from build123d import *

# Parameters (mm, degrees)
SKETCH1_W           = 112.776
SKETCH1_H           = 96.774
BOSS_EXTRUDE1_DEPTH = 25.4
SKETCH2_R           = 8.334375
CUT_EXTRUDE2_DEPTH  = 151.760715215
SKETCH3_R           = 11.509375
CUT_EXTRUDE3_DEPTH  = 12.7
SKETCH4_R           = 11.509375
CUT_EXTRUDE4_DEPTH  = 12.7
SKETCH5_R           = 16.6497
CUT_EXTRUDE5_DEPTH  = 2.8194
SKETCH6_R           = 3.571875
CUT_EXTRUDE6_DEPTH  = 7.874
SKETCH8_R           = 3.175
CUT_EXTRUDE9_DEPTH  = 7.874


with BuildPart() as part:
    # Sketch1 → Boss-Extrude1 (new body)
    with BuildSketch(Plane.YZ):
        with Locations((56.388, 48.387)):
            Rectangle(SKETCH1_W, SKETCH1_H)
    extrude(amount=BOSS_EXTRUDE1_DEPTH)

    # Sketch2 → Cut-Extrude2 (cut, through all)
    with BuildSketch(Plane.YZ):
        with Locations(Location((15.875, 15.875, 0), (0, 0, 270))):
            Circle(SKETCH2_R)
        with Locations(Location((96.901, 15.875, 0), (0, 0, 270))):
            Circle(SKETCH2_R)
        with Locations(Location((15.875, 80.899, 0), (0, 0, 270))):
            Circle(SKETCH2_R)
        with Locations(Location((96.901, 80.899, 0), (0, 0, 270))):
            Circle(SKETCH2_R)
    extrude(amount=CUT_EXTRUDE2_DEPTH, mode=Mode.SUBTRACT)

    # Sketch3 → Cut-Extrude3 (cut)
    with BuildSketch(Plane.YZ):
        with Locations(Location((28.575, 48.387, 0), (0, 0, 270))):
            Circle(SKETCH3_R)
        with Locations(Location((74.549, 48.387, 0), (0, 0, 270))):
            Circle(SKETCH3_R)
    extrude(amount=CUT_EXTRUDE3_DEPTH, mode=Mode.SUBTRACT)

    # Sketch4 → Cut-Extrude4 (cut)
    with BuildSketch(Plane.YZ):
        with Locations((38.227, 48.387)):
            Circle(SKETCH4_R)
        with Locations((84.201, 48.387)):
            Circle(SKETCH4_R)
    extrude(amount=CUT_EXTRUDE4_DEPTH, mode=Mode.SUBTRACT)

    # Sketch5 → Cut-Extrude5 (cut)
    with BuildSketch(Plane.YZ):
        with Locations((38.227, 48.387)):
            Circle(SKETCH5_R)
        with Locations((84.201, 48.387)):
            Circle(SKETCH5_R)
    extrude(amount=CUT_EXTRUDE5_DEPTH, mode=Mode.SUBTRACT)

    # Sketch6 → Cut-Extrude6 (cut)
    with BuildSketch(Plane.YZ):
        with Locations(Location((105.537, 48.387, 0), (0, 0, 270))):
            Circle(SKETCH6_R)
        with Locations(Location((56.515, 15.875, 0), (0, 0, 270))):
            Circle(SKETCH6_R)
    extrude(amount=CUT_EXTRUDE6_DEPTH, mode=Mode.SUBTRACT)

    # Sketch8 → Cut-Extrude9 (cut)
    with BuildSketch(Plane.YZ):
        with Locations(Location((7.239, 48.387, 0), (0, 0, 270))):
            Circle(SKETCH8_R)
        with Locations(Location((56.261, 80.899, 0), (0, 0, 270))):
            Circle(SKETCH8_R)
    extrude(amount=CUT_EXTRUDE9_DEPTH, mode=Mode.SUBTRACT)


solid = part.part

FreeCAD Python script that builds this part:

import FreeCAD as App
import Part
import Sketcher
from FreeCAD import Vector
Q = App.Units.Quantity

doc = App.newDocument("Part")
body = doc.addObject("PartDesign::Body", "Body")

# Sketch on YZ plane
sketch1 = body.newObject("Sketcher::SketchObject", "Sketch")
sketch1.AttachmentSupport = (doc.getObject("YZ_Plane"), [""])
sketch1.MapMode = "FlatFace"
sketch1.addGeometry(Part.LineSegment(Vector(0, 97, 0), Vector(0, 0, 0)), False)
sketch1.addGeometry(Part.LineSegment(Vector(0, 0, 0), Vector(113, 0, 0)), False)
sketch1.addGeometry(Part.LineSegment(Vector(113, 0, 0), Vector(113, 97, 0)), False)
sketch1.addGeometry(Part.LineSegment(Vector(113, 97, 0), Vector(0, 97, 0)), False)
sketch1.addConstraint(Sketcher.Constraint("Coincident", 0, 2, 1, 1))
sketch1.addConstraint(Sketcher.Constraint("Coincident", 1, 2, 2, 1))
sketch1.addConstraint(Sketcher.Constraint("Coincident", 2, 2, 3, 1))
sketch1.addConstraint(Sketcher.Constraint("Coincident", 3, 2, 0, 1))
sketch1.addConstraint(Sketcher.Constraint("Vertical", 0))
sketch1.addConstraint(Sketcher.Constraint("Horizontal", 1))
sketch1.addConstraint(Sketcher.Constraint("Vertical", 2))
sketch1.addConstraint(Sketcher.Constraint("Horizontal", 3))
sketch1.addConstraint(Sketcher.Constraint("Coincident", 0, 2, -1, 1))
sketch1.addConstraint(Sketcher.Constraint("DistanceX", 1, 1, 1, 2, Q("4.44 in")))
sketch1.addConstraint(Sketcher.Constraint("DistanceY", 0, 2, 0, 1, Q("3.81 in")))
pad1 = body.newObject("PartDesign::Pad", "Pad")
pad1.Profile = sketch1
pad1.Length = Q("1 in")

# Sketch on YZ plane
sketch2 = body.newObject("Sketcher::SketchObject", "Sketch001")
sketch2.AttachmentSupport = (doc.getObject("YZ_Plane"), [""])
sketch2.MapMode = "FlatFace"
sketch2.addGeometry(Part.Circle(Vector(16, 16, 0), Vector(0, 0, 1), 8), False)
sketch2.addGeometry(Part.Circle(Vector(97, 16, 0), Vector(0, 0, 1), 8), False)
sketch2.addGeometry(Part.Circle(Vector(16, 81, 0), Vector(0, 0, 1), 8), False)
sketch2.addGeometry(Part.Circle(Vector(97, 81, 0), Vector(0, 0, 1), 8), False)
sketch2.addConstraint(Sketcher.Constraint("Equal", 0, 1))
sketch2.addConstraint(Sketcher.Constraint("Equal", 1, 2))
sketch2.addConstraint(Sketcher.Constraint("Equal", 2, 3))
sketch2.addConstraint(Sketcher.Constraint("Horizontal", 0, 3, 1, 3))
sketch2.addConstraint(Sketcher.Constraint("Horizontal", 2, 3, 3, 3))
sketch2.addConstraint(Sketcher.Constraint("Vertical", 0, 3, 2, 3))
sketch2.addConstraint(Sketcher.Constraint("Vertical", 1, 3, 3, 3))
sketch2.addConstraint(Sketcher.Constraint("Diameter", 0, Q("0.65625 in")))
sketch2.addConstraint(Sketcher.Constraint("DistanceX", 0, 3, 1, 3, Q("3.19 in")))
sketch2.addConstraint(Sketcher.Constraint("DistanceY", 0, 3, 2, 3, Q("2.56 in")))
sketch2.addConstraint(Sketcher.Constraint("DistanceX", -1, 1, 0, 3, Q("0.625 in")))
sketch2.addConstraint(Sketcher.Constraint("DistanceY", -1, 1, 0, 3, Q("0.625 in")))
pocket1 = body.newObject("PartDesign::Pocket", "Pocket")
pocket1.Profile = sketch2
pocket1.Type = "ThroughAll"
pocket1.Reversed = True

# Sketch on YZ plane
sketch3 = body.newObject("Sketcher::SketchObject", "Sketch002")
sketch3.AttachmentSupport = (doc.getObject("YZ_Plane"), [""])
sketch3.MapMode = "FlatFace"
sketch3.addGeometry(Part.Circle(Vector(29, 48, 0), Vector(0, 0, 1), 12), False)
sketch3.addGeometry(Part.Circle(Vector(75, 48, 0), Vector(0, 0, 1), 12), False)
sketch3.addConstraint(Sketcher.Constraint("Equal", 0, 1))
sketch3.addConstraint(Sketcher.Constraint("Horizontal", 0, 3, 1, 3))
sketch3.addConstraint(Sketcher.Constraint("Diameter", 0, Q("0.90625 in")))
sketch3.addConstraint(Sketcher.Constraint("DistanceX", 0, 3, 1, 3, Q("1.81 in")))
sketch3.addConstraint(Sketcher.Constraint("DistanceX", -1, 1, 0, 3, Q("1.125 in")))
sketch3.addConstraint(Sketcher.Constraint("DistanceY", -1, 1, 0, 3, Q("1.905 in")))
pocket2 = body.newObject("PartDesign::Pocket", "Pocket001")
pocket2.Profile = sketch3
pocket2.Length = Q("0.5 in")
pocket2.Reversed = True

# Sketch on YZ plane
sketch4 = body.newObject("Sketcher::SketchObject", "Sketch003")
sketch4.AttachmentSupport = (doc.getObject("YZ_Plane"), [""])
sketch4.MapMode = "FlatFace"
sketch4.addGeometry(Part.Circle(Vector(38, 48, 0), Vector(0, 0, 1), 12), False)
sketch4.addGeometry(Part.Circle(Vector(84, 48, 0), Vector(0, 0, 1), 12), False)
sketch4.addConstraint(Sketcher.Constraint("Equal", 0, 1))
sketch4.addConstraint(Sketcher.Constraint("Horizontal", 0, 3, 1, 3))
sketch4.addConstraint(Sketcher.Constraint("Diameter", 0, Q("0.90625 in")))
sketch4.addConstraint(Sketcher.Constraint("DistanceX", 0, 3, 1, 3, Q("1.81 in")))
sketch4.addConstraint(Sketcher.Constraint("DistanceX", -1, 1, 0, 3, Q("1.505 in")))
sketch4.addConstraint(Sketcher.Constraint("DistanceY", -1, 1, 0, 3, Q("1.905 in")))
pocket3 = body.newObject("PartDesign::Pocket", "Pocket002")
pocket3.Profile = sketch4
pocket3.Length = Q("0.5 in")
pocket3.Reversed = True

# Sketch on YZ plane
sketch5 = body.newObject("Sketcher::SketchObject", "Sketch004")
sketch5.AttachmentSupport = (doc.getObject("YZ_Plane"), [""])
sketch5.MapMode = "FlatFace"
sketch5.addGeometry(Part.Circle(Vector(38, 48, 0), Vector(0, 0, 1), 17), False)
sketch5.addGeometry(Part.Circle(Vector(84, 48, 0), Vector(0, 0, 1), 17), False)
sketch5.addConstraint(Sketcher.Constraint("Equal", 0, 1))
sketch5.addConstraint(Sketcher.Constraint("Horizontal", 0, 3, 1, 3))
sketch5.addConstraint(Sketcher.Constraint("Diameter", 0, Q("1.311 in")))
sketch5.addConstraint(Sketcher.Constraint("DistanceX", 0, 3, 1, 3, Q("1.81 in")))
sketch5.addConstraint(Sketcher.Constraint("DistanceX", -1, 1, 0, 3, Q("1.505 in")))
sketch5.addConstraint(Sketcher.Constraint("DistanceY", -1, 1, 0, 3, Q("1.905 in")))
pocket4 = body.newObject("PartDesign::Pocket", "Pocket003")
pocket4.Profile = sketch5
pocket4.Length = Q("0.111 in")
pocket4.Reversed = True

# Sketch on YZ plane
sketch6 = body.newObject("Sketcher::SketchObject", "Sketch005")
sketch6.AttachmentSupport = (doc.getObject("YZ_Plane"), [""])
sketch6.MapMode = "FlatFace"
sketch6.addGeometry(Part.Circle(Vector(105.5, 48.4, 0), Vector(0, 0, 1), 3.6), False)
sketch6.addGeometry(Part.Circle(Vector(56.5, 15.9, 0), Vector(0, 0, 1), 3.6), False)
sketch6.addConstraint(Sketcher.Constraint("Equal", 0, 1))
sketch6.addConstraint(Sketcher.Constraint("Diameter", 0, Q("0.28125 in")))
sketch6.addConstraint(Sketcher.Constraint("DistanceX", 1, 3, 0, 3, Q("1.93 in")))
sketch6.addConstraint(Sketcher.Constraint("DistanceY", 1, 3, 0, 3, Q("1.28 in")))
sketch6.addConstraint(Sketcher.Constraint("DistanceX", -1, 1, 0, 3, Q("4.155 in")))
sketch6.addConstraint(Sketcher.Constraint("DistanceY", -1, 1, 0, 3, Q("1.905 in")))
pocket5 = body.newObject("PartDesign::Pocket", "Pocket004")
pocket5.Profile = sketch6
pocket5.Length = Q("0.31 in")
pocket5.Reversed = True

# Sketch on YZ plane
sketch7 = body.newObject("Sketcher::SketchObject", "Sketch006")
sketch7.AttachmentSupport = (doc.getObject("YZ_Plane"), [""])
sketch7.MapMode = "FlatFace"
sketch7.addGeometry(Part.Circle(Vector(7.2, 48.4, 0), Vector(0, 0, 1), 3.2), False)
sketch7.addGeometry(Part.Circle(Vector(56.3, 80.9, 0), Vector(0, 0, 1), 3.2), False)
sketch7.addConstraint(Sketcher.Constraint("Equal", 0, 1))
sketch7.addConstraint(Sketcher.Constraint("Diameter", 0, Q("0.25 in")))
sketch7.addConstraint(Sketcher.Constraint("DistanceX", 0, 3, 1, 3, Q("1.93 in")))
sketch7.addConstraint(Sketcher.Constraint("DistanceY", 0, 3, 1, 3, Q("1.28 in")))
sketch7.addConstraint(Sketcher.Constraint("DistanceX", -1, 1, 0, 3, Q("0.285 in")))
sketch7.addConstraint(Sketcher.Constraint("DistanceY", -1, 1, 0, 3, Q("1.905 in")))
pocket6 = body.newObject("PartDesign::Pocket", "Pocket005")
pocket6.Profile = sketch7
pocket6.Length = Q("0.31 in")
pocket6.Reversed = True

doc.recompute()
